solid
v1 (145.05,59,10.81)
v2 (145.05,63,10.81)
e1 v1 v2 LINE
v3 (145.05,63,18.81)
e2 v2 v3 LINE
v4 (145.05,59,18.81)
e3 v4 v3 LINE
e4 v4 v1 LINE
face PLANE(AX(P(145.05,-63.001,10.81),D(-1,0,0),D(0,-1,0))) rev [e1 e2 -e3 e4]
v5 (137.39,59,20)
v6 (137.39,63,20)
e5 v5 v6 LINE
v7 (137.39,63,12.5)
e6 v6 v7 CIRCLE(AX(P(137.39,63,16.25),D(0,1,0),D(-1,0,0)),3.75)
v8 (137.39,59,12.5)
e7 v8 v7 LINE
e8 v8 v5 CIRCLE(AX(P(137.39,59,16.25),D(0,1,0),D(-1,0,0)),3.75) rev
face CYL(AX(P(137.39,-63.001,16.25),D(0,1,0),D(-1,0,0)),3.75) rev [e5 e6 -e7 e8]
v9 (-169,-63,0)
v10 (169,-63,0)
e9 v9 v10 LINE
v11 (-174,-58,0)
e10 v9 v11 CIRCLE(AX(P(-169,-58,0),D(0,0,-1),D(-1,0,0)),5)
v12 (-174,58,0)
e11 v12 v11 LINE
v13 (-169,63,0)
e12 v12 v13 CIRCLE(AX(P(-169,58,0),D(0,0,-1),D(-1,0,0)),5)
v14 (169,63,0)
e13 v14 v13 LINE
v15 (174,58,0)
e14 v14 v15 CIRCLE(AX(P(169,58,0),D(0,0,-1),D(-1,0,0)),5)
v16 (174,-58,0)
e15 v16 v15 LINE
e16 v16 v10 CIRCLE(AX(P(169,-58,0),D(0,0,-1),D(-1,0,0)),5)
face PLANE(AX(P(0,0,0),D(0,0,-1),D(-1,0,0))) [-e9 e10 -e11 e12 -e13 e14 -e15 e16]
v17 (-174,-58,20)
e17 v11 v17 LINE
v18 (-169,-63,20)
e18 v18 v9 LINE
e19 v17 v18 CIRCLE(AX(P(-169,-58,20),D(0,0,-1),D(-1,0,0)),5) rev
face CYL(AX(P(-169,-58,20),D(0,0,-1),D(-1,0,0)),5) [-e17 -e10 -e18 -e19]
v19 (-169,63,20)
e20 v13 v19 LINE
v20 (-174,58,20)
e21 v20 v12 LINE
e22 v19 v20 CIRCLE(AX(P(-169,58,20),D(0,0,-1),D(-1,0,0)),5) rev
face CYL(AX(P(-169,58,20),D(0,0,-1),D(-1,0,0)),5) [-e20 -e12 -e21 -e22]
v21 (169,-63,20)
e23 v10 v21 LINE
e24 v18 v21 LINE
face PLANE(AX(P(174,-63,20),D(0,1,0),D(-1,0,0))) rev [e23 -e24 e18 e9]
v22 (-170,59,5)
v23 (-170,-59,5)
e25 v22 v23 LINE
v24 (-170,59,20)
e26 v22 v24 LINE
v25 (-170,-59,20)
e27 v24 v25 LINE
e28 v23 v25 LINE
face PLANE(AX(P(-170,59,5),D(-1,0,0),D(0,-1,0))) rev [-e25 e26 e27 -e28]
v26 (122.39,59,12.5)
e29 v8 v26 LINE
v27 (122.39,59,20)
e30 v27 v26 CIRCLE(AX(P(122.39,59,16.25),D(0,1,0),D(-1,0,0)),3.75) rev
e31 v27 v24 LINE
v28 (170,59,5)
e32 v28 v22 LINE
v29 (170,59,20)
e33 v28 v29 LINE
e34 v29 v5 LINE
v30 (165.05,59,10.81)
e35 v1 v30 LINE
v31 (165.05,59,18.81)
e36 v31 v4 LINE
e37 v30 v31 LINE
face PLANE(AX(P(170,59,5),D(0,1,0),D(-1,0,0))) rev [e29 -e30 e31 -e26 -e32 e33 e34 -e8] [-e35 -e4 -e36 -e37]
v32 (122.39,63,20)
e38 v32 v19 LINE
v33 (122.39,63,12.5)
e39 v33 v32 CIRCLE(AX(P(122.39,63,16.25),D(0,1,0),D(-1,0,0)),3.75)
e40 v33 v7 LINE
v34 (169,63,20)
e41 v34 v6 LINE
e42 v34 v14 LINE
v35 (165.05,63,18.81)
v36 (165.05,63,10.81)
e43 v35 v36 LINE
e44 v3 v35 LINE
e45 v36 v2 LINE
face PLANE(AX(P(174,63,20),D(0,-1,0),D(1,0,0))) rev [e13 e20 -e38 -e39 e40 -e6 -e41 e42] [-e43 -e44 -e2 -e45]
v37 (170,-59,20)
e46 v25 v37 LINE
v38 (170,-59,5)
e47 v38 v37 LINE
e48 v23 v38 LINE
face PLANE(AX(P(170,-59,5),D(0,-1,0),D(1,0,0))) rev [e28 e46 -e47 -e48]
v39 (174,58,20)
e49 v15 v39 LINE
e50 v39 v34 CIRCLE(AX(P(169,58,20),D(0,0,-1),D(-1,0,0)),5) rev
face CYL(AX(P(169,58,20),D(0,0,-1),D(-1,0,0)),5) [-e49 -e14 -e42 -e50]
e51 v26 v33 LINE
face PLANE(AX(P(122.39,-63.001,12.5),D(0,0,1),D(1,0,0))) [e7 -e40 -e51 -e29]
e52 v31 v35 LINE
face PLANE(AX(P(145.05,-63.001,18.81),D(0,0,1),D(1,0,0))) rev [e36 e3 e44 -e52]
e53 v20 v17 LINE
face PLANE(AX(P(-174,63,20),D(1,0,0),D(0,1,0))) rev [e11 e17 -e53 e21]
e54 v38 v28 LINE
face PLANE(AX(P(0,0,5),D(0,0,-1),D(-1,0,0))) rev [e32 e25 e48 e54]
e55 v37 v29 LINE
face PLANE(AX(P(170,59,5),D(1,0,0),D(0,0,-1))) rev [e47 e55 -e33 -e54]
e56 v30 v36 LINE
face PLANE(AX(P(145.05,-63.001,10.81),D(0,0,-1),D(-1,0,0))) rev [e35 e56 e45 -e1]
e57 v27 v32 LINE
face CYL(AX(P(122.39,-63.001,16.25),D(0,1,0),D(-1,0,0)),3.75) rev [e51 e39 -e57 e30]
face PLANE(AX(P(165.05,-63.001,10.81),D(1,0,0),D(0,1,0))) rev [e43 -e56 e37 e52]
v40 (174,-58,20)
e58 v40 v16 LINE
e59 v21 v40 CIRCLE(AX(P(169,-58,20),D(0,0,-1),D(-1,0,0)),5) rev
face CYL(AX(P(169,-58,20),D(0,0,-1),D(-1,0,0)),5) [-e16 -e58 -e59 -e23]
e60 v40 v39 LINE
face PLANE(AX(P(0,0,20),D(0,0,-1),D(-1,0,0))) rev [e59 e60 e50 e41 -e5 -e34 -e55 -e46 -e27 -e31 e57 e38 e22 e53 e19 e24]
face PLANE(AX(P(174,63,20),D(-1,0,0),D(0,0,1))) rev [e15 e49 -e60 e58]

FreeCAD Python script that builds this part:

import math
import FreeCAD as App
import Part
import Sketcher
from FreeCAD import Vector
Q = App.Units.Quantity


def edges_at(feature, points):
    """Names of the edges that pass closest to the given points."""
    edges = feature.Shape.Edges
    near = lambda p: min(range(len(edges)), key=lambda i: edges[i].distToShape(Part.Vertex(*p))[0])
    return sorted({f"Edge{near(p) + 1}" for p in points})

doc = App.newDocument("Part")
body = doc.addObject("PartDesign::Body", "Body")

# Sketch on XY plane
sketch1 = body.newObject("Sketcher::SketchObject", "Sketch")
sketch1.AttachmentSupport = (doc.getObject("XY_Plane"), [""])
sketch1.MapMode = "FlatFace"
sketch1.addGeometry([
    Part.LineSegment(Vector(-174, 63, 0), Vector(-174, -63, 0)),
    Part.LineSegment(Vector(-174, -63, 0), Vector(174, -63, 0)),
    Part.LineSegment(Vector(174, -63, 0), Vector(174, 63, 0)),
    Part.LineSegment(Vector(174, 63, 0), Vector(-174, 63, 0)),
], False)
sketch1.addConstraint([
    Sketcher.Constraint("Coincident", 0, 2, 1, 1),
    Sketcher.Constraint("Coincident", 1, 2, 2, 1),
    Sketcher.Constraint("Coincident", 2, 2, 3, 1),
    Sketcher.Constraint("Coincident", 3, 2, 0, 1),
    Sketcher.Constraint("Vertical", 0),
    Sketcher.Constraint("Horizontal", 1),
    Sketcher.Constraint("Vertical", 2),
    Sketcher.Constraint("Horizontal", 3),
    Sketcher.Constraint("Symmetric", 0, 2, 2, 2, -1, 1),
    Sketcher.Constraint("DistanceX", 1, 1, 1, 2, Q("348 mm")),
    Sketcher.Constraint("DistanceY", 0, 2, 0, 1, Q("126 mm")),
])
pad1 = body.newObject("PartDesign::Pad", "Pad")
pad1.Profile = sketch1
pad1.Length = 20

# Sketch on XY plane
sketch2 = body.newObject("Sketcher::SketchObject", "Sketch001")
sketch2.AttachmentSupport = (doc.getObject("XY_Plane"), [""])
sketch2.MapMode = "FlatFace"
sketch2.AttachmentOffset = App.Placement(Vector(0, 0, 20), App.Rotation())
sketch2.addGeometry([
    Part.LineSegment(Vector(-170, 59, 0), Vector(-170, -59, 0)),
    Part.LineSegment(Vector(-170, -59, 0), Vector(170, -59, 0)),
    Part.LineSegment(Vector(170, -59, 0), Vector(170, 59, 0)),
    Part.LineSegment(Vector(170, 59, 0), Vector(-170, 59, 0)),
], False)
sketch2.addConstraint([
    Sketcher.Constraint("Coincident", 0, 2, 1, 1),
    Sketcher.Constraint("Coincident", 1, 2, 2, 1),
    Sketcher.Constraint("Coincident", 2, 2, 3, 1),
    Sketcher.Constraint("Coincident", 3, 2, 0, 1),
    Sketcher.Constraint("Vertical", 0),
    Sketcher.Constraint("Horizontal", 1),
    Sketcher.Constraint("Vertical", 2),
    Sketcher.Constraint("Horizontal", 3),
    Sketcher.Constraint("Symmetric", 0, 2, 2, 2, -1, 1),
    Sketcher.Constraint("DistanceX", 1, 1, 1, 2, Q("340 mm")),
    Sketcher.Constraint("DistanceY", 0, 2, 0, 1, Q("118 mm")),
])
pocket1 = body.newObject("PartDesign::Pocket", "Pocket")
pocket1.Profile = sketch2
pocket1.Length = 15

# Sketch on XZ plane
sketch3 = body.newObject("Sketcher::SketchObject", "Sketch002")
sketch3.AttachmentSupport = (doc.getObject("XZ_Plane"), [""])
sketch3.MapMode = "FlatFace"
sketch3.AttachmentOffset = App.Placement(Vector(0, 0, -63), App.Rotation())
sketch3.addGeometry([
    Part.LineSegment(Vector(137.4, 12.5, 0), Vector(122.4, 12.5, 0)),
    Part.ArcOfCircle(Part.Circle(Vector(122.4, 16.2, 0), Vector(0, 0, 1), 3.8), math.radians(90), math.radians(270)),
    Part.LineSegment(Vector(122.4, 20, 0), Vector(137.4, 20, 0)),
    Part.ArcOfCircle(Part.Circle(Vector(137.4, 16.2, 0), Vector(0, 0, 1), 3.8), math.radians(-90), math.radians(90)),
], False)
sketch3.addConstraint([
    Sketcher.Constraint("Tangent", 0, 2, 1, 2),
    Sketcher.Constraint("Tangent", 1, 1, 2, 1),
    Sketcher.Constraint("Tangent", 2, 2, 3, 2),
    Sketcher.Constraint("Tangent", 3, 1, 0, 1),
    Sketcher.Constraint("Horizontal", 0),
    Sketcher.Constraint("Horizontal", 2),
    Sketcher.Constraint("DistanceX", 0, 2, 0, 1, Q("15 mm")),
    Sketcher.Constraint("Radius", 1, Q("3.75 mm")),
    Sketcher.Constraint("DistanceY", -1, 1, 1, 1, Q("20 mm")),
    Sketcher.Constraint("DistanceX", -1, 1, 1, 3, Q("122.39 mm")),
])
pocket2 = body.newObject("PartDesign::Pocket", "Pocket001")
pocket2.Profile = sketch3
pocket2.Type = "UpToFirst"
pocket2.Reversed = True

# Sketch on XZ plane
sketch4 = body.newObject("Sketcher::SketchObject", "Sketch003")
sketch4.AttachmentSupport = (doc.getObject("XZ_Plane"), [""])
sketch4.MapMode = "FlatFace"
sketch4.AttachmentOffset = App.Placement(Vector(0, 0, -63), App.Rotation())
sketch4.addGeometry([
    Part.LineSegment(Vector(145, 11, 0), Vector(145, 19, 0)),
    Part.LineSegment(Vector(145, 19, 0), Vector(165, 19, 0)),
    Part.LineSegment(Vector(165, 19, 0), Vector(165, 11, 0)),
    Part.LineSegment(Vector(165, 11, 0), Vector(145, 11, 0)),
], False)
sketch4.addConstraint([
    Sketcher.Constraint("Coincident", 0, 2, 1, 1),
    Sketcher.Constraint("Coincident", 1, 2, 2, 1),
    Sketcher.Constraint("Coincident", 2, 2, 3, 1),
    Sketcher.Constraint("Coincident", 3, 2, 0, 1),
    Sketcher.Constraint("Vertical", 0),
    Sketcher.Constraint("Horizontal", 1),
    Sketcher.Constraint("Vertical", 2),
    Sketcher.Constraint("Horizontal", 3),
    Sketcher.Constraint("DistanceX", 1, 1, 1, 2, Q("20 mm")),
    Sketcher.Constraint("DistanceY", 0, 1, 0, 2, Q("8 mm")),
    Sketcher.Constraint("DistanceX", -1, 1, 0, 2, Q("145.05 mm")),
    Sketcher.Constraint("DistanceY", -1, 1, 0, 2, Q("18.81 mm")),
])
pocket3 = body.newObject("PartDesign::Pocket", "Pocket002")
pocket3.Profile = sketch4
pocket3.Type = "UpToFirst"
pocket3.Reversed = True
doc.recompute()

fillet = body.newObject("PartDesign::Fillet", "Fillet")
fillet.Base = (pocket3, edges_at(pocket3, [
    (-174, 63, 10),
    (174, 63, 10),
    (174, -63, 10),
    (-174, -63, 10),
]))
fillet.Radius = 5

doc.recompute()
